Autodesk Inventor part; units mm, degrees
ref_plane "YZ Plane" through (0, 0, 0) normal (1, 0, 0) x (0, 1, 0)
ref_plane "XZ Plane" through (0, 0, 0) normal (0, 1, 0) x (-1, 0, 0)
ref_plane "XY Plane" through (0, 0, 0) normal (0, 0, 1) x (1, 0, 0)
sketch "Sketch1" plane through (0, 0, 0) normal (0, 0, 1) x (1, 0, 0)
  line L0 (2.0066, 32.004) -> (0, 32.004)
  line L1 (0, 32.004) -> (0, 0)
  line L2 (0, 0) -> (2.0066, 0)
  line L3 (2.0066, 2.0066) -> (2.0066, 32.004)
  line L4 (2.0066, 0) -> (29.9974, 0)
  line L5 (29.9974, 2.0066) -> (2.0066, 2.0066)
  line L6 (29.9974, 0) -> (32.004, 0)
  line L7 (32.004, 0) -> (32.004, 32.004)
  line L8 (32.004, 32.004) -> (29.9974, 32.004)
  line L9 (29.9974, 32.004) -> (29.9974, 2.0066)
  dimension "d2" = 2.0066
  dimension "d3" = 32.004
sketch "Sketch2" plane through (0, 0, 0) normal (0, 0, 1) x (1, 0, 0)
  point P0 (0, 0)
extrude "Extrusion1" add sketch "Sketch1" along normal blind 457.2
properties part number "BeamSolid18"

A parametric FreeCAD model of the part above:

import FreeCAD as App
import Part
import Sketcher
from FreeCAD import Vector
Q = App.Units.Quantity


def add_polygon(sketch, points):
    """Adds a closed chain of lines whose ends are joined by coincident constraints."""
    first, n = sketch.GeometryCount, len(points)
    for a, b in zip(points, points[1:] + points[:1]):
        sketch.addGeometry(Part.LineSegment(App.Vector(*a, 0), App.Vector(*b, 0)), False)
    for i in range(n):
        sketch.addConstraint(Sketcher.Constraint("Coincident", first + i, 2, first + (i + 1) % n, 1))

doc = App.newDocument("Part")
params = doc.addObject("Spreadsheet::Sheet", "Params")
for row, (alias, value) in enumerate([
    ("sketch1_width", "1.26 in"),
    ("sketch1_width2", "0.079 in"),
    ("pad1_length", "18 in"),
], start=1):
    params.set(f"A{row}", alias)
    params.set(f"B{row}", "=" + value)
    params.setAlias(f"B{row}", alias)

body = doc.addObject("PartDesign::Body", "Body")

# Sketch on XY plane
sketch1 = body.newObject("Sketcher::SketchObject", "Sketch")
sketch1.AttachmentSupport = (doc.getObject("XY_Plane"), [""])
sketch1.MapMode = "FlatFace"
add_polygon(sketch1, [(2.0066, 2.0066), (2.0066, 32.004), (0, 32.004), (0, 0), (32.004, 0), (32.004, 32.004), (29.9974, 32.004), (29.9974, 2.0066)])  # lines 0-7
sketch1.addConstraint(Sketcher.Constraint("Vertical", 0))
sketch1.addConstraint(Sketcher.Constraint("Horizontal", 1))
sketch1.addConstraint(Sketcher.Constraint("Vertical", 2))
sketch1.addConstraint(Sketcher.Constraint("Horizontal", 3))
sketch1.addConstraint(Sketcher.Constraint("Vertical", 4))
sketch1.addConstraint(Sketcher.Constraint("Horizontal", 5))
sketch1.addConstraint(Sketcher.Constraint("Vertical", 6))
sketch1.addConstraint(Sketcher.Constraint("Horizontal", 7))
sketch1.addConstraint(Sketcher.Constraint("Coincident", 2, 2, -1, 1))
sketch1.addConstraint(Sketcher.Constraint("Horizontal", 1, 2, 4, 2))
sketch1.addConstraint(Sketcher.Constraint("Equal", 1, 5))
sketch1.addConstraint(Sketcher.Constraint("Equal", 3, 2))
sketch1.addConstraint(Sketcher.Constraint("DistanceX", 3, 1, 3, 2, Q("1.26 in")))
sketch1.addConstraint(Sketcher.Constraint("DistanceX", 1, 2, 1, 1, Q("0.079 in")))
sketch1.addConstraint(Sketcher.Constraint("DistanceY", -1, 1, 6, 2, Q("0.079 in")))
sketch1.setExpression("Constraints[20]", "Params.sketch1_width")
sketch1.setExpression("Constraints[21]", "Params.sketch1_width2")
pad1 = body.newObject("PartDesign::Pad", "Pad")
pad1.Profile = sketch1
pad1.setExpression("Length", "Params.pad1_length")

doc.recompute()
